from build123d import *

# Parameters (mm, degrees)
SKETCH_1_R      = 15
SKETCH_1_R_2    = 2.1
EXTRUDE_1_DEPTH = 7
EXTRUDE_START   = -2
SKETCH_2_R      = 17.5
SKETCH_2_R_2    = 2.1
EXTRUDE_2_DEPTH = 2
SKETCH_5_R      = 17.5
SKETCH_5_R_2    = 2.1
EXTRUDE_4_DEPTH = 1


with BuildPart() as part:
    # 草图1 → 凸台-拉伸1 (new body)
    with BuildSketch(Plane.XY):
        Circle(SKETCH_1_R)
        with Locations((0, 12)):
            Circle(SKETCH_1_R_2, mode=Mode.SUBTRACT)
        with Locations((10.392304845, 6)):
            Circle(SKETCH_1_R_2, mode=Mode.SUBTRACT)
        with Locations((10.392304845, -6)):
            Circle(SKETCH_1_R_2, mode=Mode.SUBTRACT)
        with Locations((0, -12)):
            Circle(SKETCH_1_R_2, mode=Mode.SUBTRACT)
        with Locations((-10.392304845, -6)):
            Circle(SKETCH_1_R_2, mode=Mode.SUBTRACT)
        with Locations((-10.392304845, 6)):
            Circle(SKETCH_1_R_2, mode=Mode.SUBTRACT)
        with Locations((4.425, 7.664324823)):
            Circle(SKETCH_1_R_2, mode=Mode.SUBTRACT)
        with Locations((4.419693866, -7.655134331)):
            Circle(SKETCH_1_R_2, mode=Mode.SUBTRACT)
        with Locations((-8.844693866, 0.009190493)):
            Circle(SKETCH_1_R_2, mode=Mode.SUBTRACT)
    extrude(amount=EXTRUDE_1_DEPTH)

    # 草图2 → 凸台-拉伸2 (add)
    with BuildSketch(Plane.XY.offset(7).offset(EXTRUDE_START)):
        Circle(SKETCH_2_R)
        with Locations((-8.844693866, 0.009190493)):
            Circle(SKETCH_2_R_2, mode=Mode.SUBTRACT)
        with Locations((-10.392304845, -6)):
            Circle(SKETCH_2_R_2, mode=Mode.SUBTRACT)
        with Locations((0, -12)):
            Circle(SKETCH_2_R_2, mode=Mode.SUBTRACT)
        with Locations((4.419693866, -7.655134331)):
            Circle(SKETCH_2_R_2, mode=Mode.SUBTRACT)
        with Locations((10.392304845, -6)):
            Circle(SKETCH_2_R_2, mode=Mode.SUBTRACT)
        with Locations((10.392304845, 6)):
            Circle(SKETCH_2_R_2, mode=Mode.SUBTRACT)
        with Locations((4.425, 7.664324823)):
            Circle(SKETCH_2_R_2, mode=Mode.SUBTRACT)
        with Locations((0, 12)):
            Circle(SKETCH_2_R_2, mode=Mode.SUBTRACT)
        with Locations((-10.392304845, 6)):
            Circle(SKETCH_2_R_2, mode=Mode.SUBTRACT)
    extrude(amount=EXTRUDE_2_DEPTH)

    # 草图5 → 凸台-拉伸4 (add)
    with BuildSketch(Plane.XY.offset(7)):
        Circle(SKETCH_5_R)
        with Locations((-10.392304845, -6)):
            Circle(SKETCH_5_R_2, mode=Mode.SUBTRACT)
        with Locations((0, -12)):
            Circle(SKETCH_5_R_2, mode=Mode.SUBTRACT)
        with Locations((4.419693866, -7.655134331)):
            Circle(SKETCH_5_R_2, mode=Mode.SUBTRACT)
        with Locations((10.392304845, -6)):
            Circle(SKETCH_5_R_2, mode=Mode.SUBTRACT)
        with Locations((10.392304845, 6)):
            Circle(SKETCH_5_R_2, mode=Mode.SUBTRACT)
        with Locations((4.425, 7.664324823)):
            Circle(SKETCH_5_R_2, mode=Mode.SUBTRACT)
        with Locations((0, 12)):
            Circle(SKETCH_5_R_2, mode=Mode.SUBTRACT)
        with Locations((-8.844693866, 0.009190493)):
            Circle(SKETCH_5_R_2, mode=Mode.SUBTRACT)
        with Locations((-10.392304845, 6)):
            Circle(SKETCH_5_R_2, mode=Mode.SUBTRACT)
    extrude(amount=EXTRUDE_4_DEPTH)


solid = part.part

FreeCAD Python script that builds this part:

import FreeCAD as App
import Part
import Sketcher
from FreeCAD import Vector
Q = App.Units.Quantity

doc = App.newDocument("Part")
params = doc.addObject("Spreadsheet::Sheet", "Params")
for row, (alias, value) in enumerate([
    ("sketch1_diameter", "30 mm"),
    ("sketch1_diameter2", "4.2 mm"),
    ("pad1_length", "7 mm"),
    ("sketch2_diameter", "35 mm"),
    ("sketch2_diameter2", "4.2 mm"),
    ("pad2_length", "2 mm"),
    ("sketch3_diameter", "35 mm"),
    ("sketch3_diameter2", "4.2 mm"),
    ("pad3_length", "1 mm"),
], start=1):
    params.set(f"A{row}", alias)
    params.set(f"B{row}", "=" + value)
    params.setAlias(f"B{row}", alias)

body = doc.addObject("PartDesign::Body", "Body")

sketch1 = doc.addObject("Sketcher::SketchObject", "Sketch")
body.addObject(sketch1)
sketch1.AttachmentSupport = (doc.XY_Plane, [""])
sketch1.MapMode = "FlatFace"
sketch1.addGeometry([
    Part.Circle(Vector(0, 0, 0), Vector(0, 0, 1), 15),
    Part.Circle(Vector(-10.392305, -6, 0), Vector(0, 0, 1), 2.1),
    Part.Circle(Vector(0, -12, 0), Vector(0, 0, 1), 2.1),
    Part.Circle(Vector(4.419694, -7.655134, 0), Vector(0, 0, 1), 2.1),
    Part.Circle(Vector(10.392305, -6, 0), Vector(0, 0, 1), 2.1),
    Part.Circle(Vector(-8.844694, 0.00919, 0), Vector(0, 0, 1), 2.1),
    Part.Circle(Vector(-10.392305, 6, 0), Vector(0, 0, 1), 2.1),
    Part.Circle(Vector(10.392305, 6, 0), Vector(0, 0, 1), 2.1),
    Part.Circle(Vector(4.425, 7.664325, 0), Vector(0, 0, 1), 2.1),
    Part.Circle(Vector(0, 12, 0), Vector(0, 0, 1), 2.1),
], False)
sketch1.addConstraint([
    Sketcher.Constraint("Coincident", 0, 3, -1, 1),
    Sketcher.Constraint("Equal", 1, 2),
    Sketcher.Constraint("Equal", 2, 3),
    Sketcher.Constraint("Equal", 3, 4),
    Sketcher.Constraint("Equal", 4, 5),
    Sketcher.Constraint("Equal", 5, 6),
    Sketcher.Constraint("Equal", 6, 7),
    Sketcher.Constraint("Equal", 7, 8),
    Sketcher.Constraint("Equal", 8, 9),
    Sketcher.Constraint("Symmetric", 4, 3, 6, 3, -1, 1),
    Sketcher.Constraint("Symmetric", 1, 3, 7, 3, -1, 1),
    Sketcher.Constraint("Symmetric", 2, 3, 9, 3, -1, 1),
    Sketcher.Constraint("Symmetric", 1, 3, 4, 3, -2),
    Sketcher.Constraint("PointOnObject", 2, 3, -2),
    Sketcher.Constraint("Diameter", 0, Q("30 mm")),
    Sketcher.Constraint("Diameter", 1, Q("4.2 mm")),
    Sketcher.Constraint("DistanceY", 1, 3, -1, 1, Q("6 mm")),
    Sketcher.Constraint("DistanceY", 2, 3, -1, 1, Q("12 mm")),
    Sketcher.Constraint("DistanceX", -1, 1, 8, 3, Q("4.425 mm")),
    Sketcher.Constraint("DistanceX", 1, 3, 3, 3, Q("14.811999 mm")),
    Sketcher.Constraint("DistanceX", 5, 3, 4, 3, Q("19.236999 mm")),
    Sketcher.Constraint("DistanceY", -1, 1, 5, 3, Q("0.00919 mm")),
    Sketcher.Constraint("DistanceX", 3, 3, 4, 3, Q("5.972611 mm")),
    Sketcher.Constraint("DistanceY", 3, 3, -1, 1, Q("7.655134 mm")),
    Sketcher.Constraint("DistanceY", -1, 1, 8, 3, Q("7.664325 mm")),
])
sketch1.setExpression("Constraints[14]", "Params.sketch1_diameter")
sketch1.setExpression("Constraints[15]", "Params.sketch1_diameter2")
pad1 = doc.addObject("PartDesign::Pad", "Pad")
body.addObject(pad1)
pad1.Profile = sketch1
pad1.setExpression("Length", "Params.pad1_length")

sketch2 = doc.addObject("Sketcher::SketchObject", "Sketch001")
body.addObject(sketch2)
sketch2.AttachmentSupport = (doc.XY_Plane, [""])
sketch2.MapMode = "FlatFace"
sketch2.AttachmentOffset = App.Placement(Vector(0, 0, 5), App.Rotation())
sketch2.addGeometry([
    Part.Circle(Vector(0, 0, 0), Vector(0, 0, 1), 17.5),
    Part.Circle(Vector(-10.392305, -6, 0), Vector(0, 0, 1), 2.1),
    Part.Circle(Vector(0, -12, 0), Vector(0, 0, 1), 2.1),
    Part.Circle(Vector(4.419694, -7.655134, 0), Vector(0, 0, 1), 2.1),
    Part.Circle(Vector(10.392305, -6, 0), Vector(0, 0, 1), 2.1),
    Part.Circle(Vector(-8.844694, 0.00919, 0), Vector(0, 0, 1), 2.1),
    Part.Circle(Vector(-10.392305, 6, 0), Vector(0, 0, 1), 2.1),
    Part.Circle(Vector(10.392305, 6, 0), Vector(0, 0, 1), 2.1),
    Part.Circle(Vector(4.425, 7.664325, 0), Vector(0, 0, 1), 2.1),
    Part.Circle(Vector(0, 12, 0), Vector(0, 0, 1), 2.1),
], False)
sketch2.addConstraint([
    Sketcher.Constraint("Coincident", 0, 3, -1, 1),
    Sketcher.Constraint("Equal", 1, 2),
    Sketcher.Constraint("Equal", 2, 3),
    Sketcher.Constraint("Equal", 3, 4),
    Sketcher.Constraint("Equal", 4, 5),
    Sketcher.Constraint("Equal", 5, 6),
    Sketcher.Constraint("Equal", 6, 7),
    Sketcher.Constraint("Equal", 7, 8),
    Sketcher.Constraint("Equal", 8, 9),
    Sketcher.Constraint("Symmetric", 4, 3, 6, 3, -1, 1),
    Sketcher.Constraint("Symmetric", 1, 3, 7, 3, -1, 1),
    Sketcher.Constraint("Symmetric", 2, 3, 9, 3, -1, 1),
    Sketcher.Constraint("Symmetric", 1, 3, 4, 3, -2),
    Sketcher.Constraint("PointOnObject", 2, 3, -2),
    Sketcher.Constraint("Diameter", 0, Q("35 mm")),
    Sketcher.Constraint("Diameter", 1, Q("4.2 mm")),
    Sketcher.Constraint("DistanceY", 1, 3, -1, 1, Q("6 mm")),
    Sketcher.Constraint("DistanceY", 2, 3, -1, 1, Q("12 mm")),
    Sketcher.Constraint("DistanceX", -1, 1, 8, 3, Q("4.425 mm")),
    Sketcher.Constraint("DistanceX", 1, 3, 3, 3, Q("14.811999 mm")),
    Sketcher.Constraint("DistanceX", 5, 3, 4, 3, Q("19.236999 mm")),
    Sketcher.Constraint("DistanceY", -1, 1, 5, 3, Q("0.00919 mm")),
    Sketcher.Constraint("DistanceX", 3, 3, 4, 3, Q("5.972611 mm")),
    Sketcher.Constraint("DistanceY", 3, 3, -1, 1, Q("7.655134 mm")),
    Sketcher.Constraint("DistanceY", -1, 1, 8, 3, Q("7.664325 mm")),
])
sketch2.setExpression("Constraints[14]", "Params.sketch2_diameter")
sketch2.setExpression("Constraints[15]", "Params.sketch2_diameter2")
pad2 = doc.addObject("PartDesign::Pad", "Pad001")
body.addObject(pad2)
pad2.Profile = sketch2
pad2.setExpression("Length", "Params.pad2_length")

sketch3 = doc.addObject("Sketcher::SketchObject", "Sketch002")
body.addObject(sketch3)
sketch3.AttachmentSupport = (doc.XY_Plane, [""])
sketch3.MapMode = "FlatFace"
sketch3.AttachmentOffset = App.Placement(Vector(0, 0, 7), App.Rotation())
sketch3.addGeometry([
    Part.Circle(Vector(0, 0, 0), Vector(0, 0, 1), 17.5),
    Part.Circle(Vector(-10.392305, -6, 0), Vector(0, 0, 1), 2.1),
    Part.Circle(Vector(0, -12, 0), Vector(0, 0, 1), 2.1),
    Part.Circle(Vector(4.419694, -7.655134, 0), Vector(0, 0, 1), 2.1),
    Part.Circle(Vector(10.392305, -6, 0), Vector(0, 0, 1), 2.1),
    Part.Circle(Vector(-8.844694, 0.00919, 0), Vector(0, 0, 1), 2.1),
    Part.Circle(Vector(-10.392305, 6, 0), Vector(0, 0, 1), 2.1),
    Part.Circle(Vector(10.392305, 6, 0), Vector(0, 0, 1), 2.1),
    Part.Circle(Vector(4.425, 7.664325, 0), Vector(0, 0, 1), 2.1),
    Part.Circle(Vector(0, 12, 0), Vector(0, 0, 1), 2.1),
], False)
sketch3.addConstraint([
    Sketcher.Constraint("Coincident", 0, 3, -1, 1),
    Sketcher.Constraint("Equal", 1, 2),
    Sketcher.Constraint("Equal", 2, 3),
    Sketcher.Constraint("Equal", 3, 4),
    Sketcher.Constraint("Equal", 4, 5),
    Sketcher.Constraint("Equal", 5, 6),
    Sketcher.Constraint("Equal", 6, 7),
    Sketcher.Constraint("Equal", 7, 8),
    Sketcher.Constraint("Equal", 8, 9),
    Sketcher.Constraint("Symmetric", 4, 3, 6, 3, -1, 1),
    Sketcher.Constraint("Symmetric", 1, 3, 7, 3, -1, 1),
    Sketcher.Constraint("Symmetric", 2, 3, 9, 3, -1, 1),
    Sketcher.Constraint("Symmetric", 1, 3, 4, 3, -2),
    Sketcher.Constraint("PointOnObject", 2, 3, -2),
    Sketcher.Constraint("Diameter", 0, Q("35 mm")),
    Sketcher.Constraint("Diameter", 1, Q("4.2 mm")),
    Sketcher.Constraint("DistanceY", 1, 3, -1, 1, Q("6 mm")),
    Sketcher.Constraint("DistanceY", 2, 3, -1, 1, Q("12 mm")),
    Sketcher.Constraint("DistanceX", -1, 1, 8, 3, Q("4.425 mm")),
    Sketcher.Constraint("DistanceX", 1, 3, 3, 3, Q("14.811999 mm")),
    Sketcher.Constraint("DistanceX", 5, 3, 4, 3, Q("19.236999 mm")),
    Sketcher.Constraint("DistanceY", -1, 1, 5, 3, Q("0.00919 mm")),
    Sketcher.Constraint("DistanceX", 3, 3, 4, 3, Q("5.972611 mm")),
    Sketcher.Constraint("DistanceY", 3, 3, -1, 1, Q("7.655134 mm")),
    Sketcher.Constraint("DistanceY", -1, 1, 8, 3, Q("7.664325 mm")),
])
sketch3.setExpression("Constraints[14]", "Params.sketch3_diameter")
sketch3.setExpression("Constraints[15]", "Params.sketch3_diameter2")
pad3 = doc.addObject("PartDesign::Pad", "Pad002")
body.addObject(pad3)
pad3.Profile = sketch3
pad3.setExpression("Length", "Params.pad3_length")

doc.recompute()
